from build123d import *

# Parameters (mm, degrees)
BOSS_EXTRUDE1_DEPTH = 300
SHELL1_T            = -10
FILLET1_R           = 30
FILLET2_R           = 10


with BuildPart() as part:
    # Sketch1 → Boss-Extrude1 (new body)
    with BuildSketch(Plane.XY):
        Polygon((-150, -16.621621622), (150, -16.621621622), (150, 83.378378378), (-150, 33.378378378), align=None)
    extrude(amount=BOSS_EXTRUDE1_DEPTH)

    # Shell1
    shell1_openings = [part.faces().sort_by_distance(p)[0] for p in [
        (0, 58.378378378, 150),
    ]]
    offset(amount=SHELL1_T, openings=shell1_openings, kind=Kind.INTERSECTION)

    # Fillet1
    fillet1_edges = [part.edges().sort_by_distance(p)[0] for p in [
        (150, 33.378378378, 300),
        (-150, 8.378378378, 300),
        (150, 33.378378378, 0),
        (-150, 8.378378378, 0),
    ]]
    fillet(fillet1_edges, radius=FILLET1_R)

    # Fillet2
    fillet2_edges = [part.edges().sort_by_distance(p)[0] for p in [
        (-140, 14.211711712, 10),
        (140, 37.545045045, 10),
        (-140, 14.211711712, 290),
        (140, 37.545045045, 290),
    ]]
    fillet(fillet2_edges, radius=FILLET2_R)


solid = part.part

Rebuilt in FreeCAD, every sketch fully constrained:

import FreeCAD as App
import Part
import Sketcher
from FreeCAD import Vector


def edges_at(feature, points):
    """Names of the edges that pass closest to the given points."""
    edges = feature.Shape.Edges
    near = lambda p: min(range(len(edges)), key=lambda i: edges[i].distToShape(Part.Vertex(*p))[0])
    return sorted({f"Edge{near(p) + 1}" for p in points})


def faces_at(feature, points):
    """Names of the faces that lie closest to the given points."""
    faces = feature.Shape.Faces
    near = lambda p: min(range(len(faces)), key=lambda i: faces[i].distToShape(Part.Vertex(*p))[0])
    return sorted({f"Face{near(p) + 1}" for p in points})


def add_polygon(sketch, points):
    """Adds a closed chain of lines whose ends are joined by coincident constraints."""
    first, n = sketch.GeometryCount, len(points)
    for a, b in zip(points, points[1:] + points[:1]):
        sketch.addGeometry(Part.LineSegment(App.Vector(*a, 0), App.Vector(*b, 0)), False)
    for i in range(n):
        sketch.addConstraint(Sketcher.Constraint("Coincident", first + i, 2, first + (i + 1) % n, 1))

doc = App.newDocument("Part")
body = doc.addObject("PartDesign::Body", "Body")

# Sketch on XY plane
sketch1 = body.newObject("Sketcher::SketchObject", "Sketch")
sketch1.AttachmentSupport = (doc.getObject("XY_Plane"), [""])
sketch1.MapMode = "FlatFace"
add_polygon(sketch1, [(-150, -17), (150, -17), (150, 83), (-150, 33)])  # lines 0-3
sketch1.addConstraint([
    Sketcher.Constraint("Horizontal", 0),
    Sketcher.Constraint("Vertical", 1),
    Sketcher.Constraint("Vertical", 3),
    Sketcher.Constraint("DistanceX", 0, 1, 0, 2, 300.0),
    Sketcher.Constraint("DistanceY", 1, 1, 1, 2, 100.0),
    Sketcher.Constraint("DistanceY", 3, 2, 3, 1, 50.0),
    Sketcher.Constraint("DistanceX", -1, 1, 0, 2, 150.0),
    Sketcher.Constraint("DistanceY", 0, 2, -1, 1, 16.621622),
])
pad1 = body.newObject("PartDesign::Pad", "Pad")
pad1.Profile = sketch1
pad1.Length = 300
doc.recompute()

thickness = body.newObject("PartDesign::Thickness", "Thickness")
thickness.Base = (pad1, faces_at(pad1, [(0, 58.378, 150)]))
thickness.Value = 10
thickness.Reversed = True
thickness.Join = "Intersection"
doc.recompute()

fillet = body.newObject("PartDesign::Fillet", "Fillet")
fillet.Base = (thickness, edges_at(thickness, [
    (150, 33.378, 300),
    (-150, 8.378, 300),
    (150, 33.378, 0),
    (-150, 8.378, 0),
]))
fillet.Radius = 30
doc.recompute()

fillet2 = body.newObject("PartDesign::Fillet", "Fillet001")
fillet2.Base = (fillet, edges_at(fillet, [
    (-140, 14.212, 10),
    (140, 37.545, 10),
    (-140, 14.212, 290),
    (140, 37.545, 290),
]))
fillet2.Radius = 10

doc.recompute()
